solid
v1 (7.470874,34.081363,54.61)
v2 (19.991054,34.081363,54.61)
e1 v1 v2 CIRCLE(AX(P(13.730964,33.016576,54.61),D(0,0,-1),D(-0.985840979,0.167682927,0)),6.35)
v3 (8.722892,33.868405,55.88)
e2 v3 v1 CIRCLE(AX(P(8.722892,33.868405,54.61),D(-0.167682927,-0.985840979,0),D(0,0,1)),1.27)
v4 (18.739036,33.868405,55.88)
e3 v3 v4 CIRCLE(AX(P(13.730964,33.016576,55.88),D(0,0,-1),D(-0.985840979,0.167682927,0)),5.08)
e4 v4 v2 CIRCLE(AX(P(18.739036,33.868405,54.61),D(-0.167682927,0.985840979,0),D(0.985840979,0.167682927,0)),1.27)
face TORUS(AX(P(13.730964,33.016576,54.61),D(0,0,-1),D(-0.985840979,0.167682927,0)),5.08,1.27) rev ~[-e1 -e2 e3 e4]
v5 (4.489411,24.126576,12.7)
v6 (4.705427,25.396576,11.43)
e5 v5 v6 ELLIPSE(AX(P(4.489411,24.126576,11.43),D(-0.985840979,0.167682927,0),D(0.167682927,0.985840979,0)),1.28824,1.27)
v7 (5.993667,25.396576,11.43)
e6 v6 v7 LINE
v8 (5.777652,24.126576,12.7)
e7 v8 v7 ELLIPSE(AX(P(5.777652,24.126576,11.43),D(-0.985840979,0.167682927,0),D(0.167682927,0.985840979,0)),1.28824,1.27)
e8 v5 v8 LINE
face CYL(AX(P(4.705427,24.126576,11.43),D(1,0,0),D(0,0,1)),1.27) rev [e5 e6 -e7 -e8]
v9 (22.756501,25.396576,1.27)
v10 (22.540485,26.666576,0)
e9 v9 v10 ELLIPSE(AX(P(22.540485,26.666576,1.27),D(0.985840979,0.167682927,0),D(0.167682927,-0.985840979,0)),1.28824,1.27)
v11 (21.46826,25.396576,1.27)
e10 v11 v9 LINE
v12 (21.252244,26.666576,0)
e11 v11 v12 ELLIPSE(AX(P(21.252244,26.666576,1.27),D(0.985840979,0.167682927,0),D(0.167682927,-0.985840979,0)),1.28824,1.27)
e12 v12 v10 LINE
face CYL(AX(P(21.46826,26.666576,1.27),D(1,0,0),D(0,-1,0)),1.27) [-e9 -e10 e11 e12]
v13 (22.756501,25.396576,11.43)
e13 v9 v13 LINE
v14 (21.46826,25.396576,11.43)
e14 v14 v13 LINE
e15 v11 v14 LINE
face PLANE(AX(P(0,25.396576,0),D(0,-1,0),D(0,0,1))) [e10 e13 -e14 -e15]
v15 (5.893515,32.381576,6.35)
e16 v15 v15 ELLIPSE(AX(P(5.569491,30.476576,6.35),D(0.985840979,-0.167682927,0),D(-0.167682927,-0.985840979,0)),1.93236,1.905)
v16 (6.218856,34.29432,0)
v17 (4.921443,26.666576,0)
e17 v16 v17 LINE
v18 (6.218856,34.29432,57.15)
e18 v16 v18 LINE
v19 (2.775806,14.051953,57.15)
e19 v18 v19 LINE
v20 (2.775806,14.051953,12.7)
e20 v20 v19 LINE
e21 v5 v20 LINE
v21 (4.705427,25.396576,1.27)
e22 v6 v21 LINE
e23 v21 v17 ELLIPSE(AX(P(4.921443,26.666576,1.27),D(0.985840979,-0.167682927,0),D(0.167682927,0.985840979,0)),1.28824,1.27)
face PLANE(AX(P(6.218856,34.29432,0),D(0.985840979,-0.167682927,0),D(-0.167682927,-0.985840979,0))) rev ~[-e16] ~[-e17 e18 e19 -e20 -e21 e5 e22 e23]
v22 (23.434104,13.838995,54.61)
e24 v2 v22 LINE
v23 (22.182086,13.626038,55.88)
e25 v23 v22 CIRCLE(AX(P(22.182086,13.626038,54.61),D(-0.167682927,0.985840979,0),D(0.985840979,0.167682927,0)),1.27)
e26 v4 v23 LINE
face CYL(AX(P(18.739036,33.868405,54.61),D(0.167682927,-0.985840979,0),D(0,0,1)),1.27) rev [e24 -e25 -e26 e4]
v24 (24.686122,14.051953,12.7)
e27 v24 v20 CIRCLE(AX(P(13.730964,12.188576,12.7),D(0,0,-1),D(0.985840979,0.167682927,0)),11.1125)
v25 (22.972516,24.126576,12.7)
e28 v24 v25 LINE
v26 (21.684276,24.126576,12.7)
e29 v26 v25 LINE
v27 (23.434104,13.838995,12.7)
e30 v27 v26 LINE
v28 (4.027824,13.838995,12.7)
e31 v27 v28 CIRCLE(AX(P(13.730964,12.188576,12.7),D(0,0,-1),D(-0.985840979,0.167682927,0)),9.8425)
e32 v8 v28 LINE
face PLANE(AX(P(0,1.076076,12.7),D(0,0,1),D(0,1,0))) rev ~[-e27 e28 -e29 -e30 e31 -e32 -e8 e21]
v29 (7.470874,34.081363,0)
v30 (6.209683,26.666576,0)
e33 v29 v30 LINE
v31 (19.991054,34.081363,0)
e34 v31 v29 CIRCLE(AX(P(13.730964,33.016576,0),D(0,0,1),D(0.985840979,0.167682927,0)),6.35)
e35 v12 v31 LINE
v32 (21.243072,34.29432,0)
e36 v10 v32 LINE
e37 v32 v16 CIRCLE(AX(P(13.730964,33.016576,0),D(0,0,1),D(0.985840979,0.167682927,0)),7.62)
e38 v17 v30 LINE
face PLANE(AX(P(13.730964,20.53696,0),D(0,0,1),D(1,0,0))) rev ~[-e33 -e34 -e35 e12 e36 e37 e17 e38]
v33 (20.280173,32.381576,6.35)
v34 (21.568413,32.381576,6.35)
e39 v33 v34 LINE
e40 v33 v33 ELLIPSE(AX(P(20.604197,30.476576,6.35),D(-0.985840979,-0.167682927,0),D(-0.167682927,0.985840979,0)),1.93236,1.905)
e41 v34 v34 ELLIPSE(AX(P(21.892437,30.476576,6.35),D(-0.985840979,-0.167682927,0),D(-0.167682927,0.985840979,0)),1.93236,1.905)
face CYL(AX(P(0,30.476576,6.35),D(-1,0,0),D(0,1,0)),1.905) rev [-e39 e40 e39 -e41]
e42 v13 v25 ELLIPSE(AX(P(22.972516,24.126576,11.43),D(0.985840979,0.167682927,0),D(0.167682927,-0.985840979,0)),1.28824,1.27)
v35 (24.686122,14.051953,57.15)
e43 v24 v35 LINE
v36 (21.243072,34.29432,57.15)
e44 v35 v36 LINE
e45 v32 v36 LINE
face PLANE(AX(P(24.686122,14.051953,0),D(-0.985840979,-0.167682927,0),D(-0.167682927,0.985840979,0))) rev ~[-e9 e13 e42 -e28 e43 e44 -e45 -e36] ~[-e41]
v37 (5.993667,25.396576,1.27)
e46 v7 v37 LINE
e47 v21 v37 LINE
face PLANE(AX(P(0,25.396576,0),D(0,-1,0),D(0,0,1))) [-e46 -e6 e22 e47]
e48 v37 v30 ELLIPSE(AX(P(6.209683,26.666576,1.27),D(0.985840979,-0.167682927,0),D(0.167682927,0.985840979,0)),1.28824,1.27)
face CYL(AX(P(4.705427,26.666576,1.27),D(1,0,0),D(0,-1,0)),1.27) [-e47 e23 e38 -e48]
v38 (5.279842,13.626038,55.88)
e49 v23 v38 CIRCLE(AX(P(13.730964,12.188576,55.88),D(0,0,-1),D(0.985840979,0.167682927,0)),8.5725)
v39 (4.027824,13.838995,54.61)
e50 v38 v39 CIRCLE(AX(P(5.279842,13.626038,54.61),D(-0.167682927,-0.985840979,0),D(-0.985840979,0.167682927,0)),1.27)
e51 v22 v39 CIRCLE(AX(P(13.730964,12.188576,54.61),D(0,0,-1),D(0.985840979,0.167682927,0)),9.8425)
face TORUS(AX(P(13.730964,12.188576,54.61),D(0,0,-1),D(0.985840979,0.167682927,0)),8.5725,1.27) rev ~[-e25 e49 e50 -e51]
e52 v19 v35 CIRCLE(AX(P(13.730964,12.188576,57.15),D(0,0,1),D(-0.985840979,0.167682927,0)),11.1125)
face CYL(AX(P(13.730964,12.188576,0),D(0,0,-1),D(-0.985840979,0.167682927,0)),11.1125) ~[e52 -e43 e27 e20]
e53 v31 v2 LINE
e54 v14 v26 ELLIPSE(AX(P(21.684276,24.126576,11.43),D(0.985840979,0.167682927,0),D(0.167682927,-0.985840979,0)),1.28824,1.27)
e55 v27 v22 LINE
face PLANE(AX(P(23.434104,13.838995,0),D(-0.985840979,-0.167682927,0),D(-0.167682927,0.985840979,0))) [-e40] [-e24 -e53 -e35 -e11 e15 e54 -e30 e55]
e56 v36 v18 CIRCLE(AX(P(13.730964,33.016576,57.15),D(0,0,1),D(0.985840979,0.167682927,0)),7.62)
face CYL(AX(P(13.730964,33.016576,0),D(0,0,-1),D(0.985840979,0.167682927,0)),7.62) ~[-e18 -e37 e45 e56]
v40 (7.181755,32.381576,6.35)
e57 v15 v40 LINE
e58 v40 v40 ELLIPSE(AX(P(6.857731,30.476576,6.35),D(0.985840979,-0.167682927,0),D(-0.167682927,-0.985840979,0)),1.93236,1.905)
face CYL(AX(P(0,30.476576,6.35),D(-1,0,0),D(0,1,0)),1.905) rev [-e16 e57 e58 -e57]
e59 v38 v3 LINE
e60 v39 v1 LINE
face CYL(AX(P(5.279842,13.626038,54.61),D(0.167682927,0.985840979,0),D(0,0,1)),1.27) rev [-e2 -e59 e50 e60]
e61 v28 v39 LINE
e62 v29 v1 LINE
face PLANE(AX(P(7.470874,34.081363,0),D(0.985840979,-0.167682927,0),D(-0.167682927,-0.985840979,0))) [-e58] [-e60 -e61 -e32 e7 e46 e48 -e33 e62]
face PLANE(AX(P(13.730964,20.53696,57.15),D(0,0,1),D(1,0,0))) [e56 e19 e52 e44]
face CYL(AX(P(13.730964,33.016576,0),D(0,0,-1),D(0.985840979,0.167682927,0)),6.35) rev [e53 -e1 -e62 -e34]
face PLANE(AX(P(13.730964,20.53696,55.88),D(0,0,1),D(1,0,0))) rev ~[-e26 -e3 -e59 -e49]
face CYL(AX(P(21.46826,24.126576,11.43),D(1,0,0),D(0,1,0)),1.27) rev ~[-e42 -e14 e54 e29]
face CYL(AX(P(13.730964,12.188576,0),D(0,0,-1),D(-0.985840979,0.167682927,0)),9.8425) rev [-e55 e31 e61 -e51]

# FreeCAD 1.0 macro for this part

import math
import FreeCAD as App
import Part
import Sketcher

V = App.Vector
Q = App.Units.Quantity


def edges_at(feature, points):
    """Names of the edges that pass closest to the given points."""
    edges = feature.Shape.Edges
    near = lambda p: min(range(len(edges)), key=lambda i: edges[i].distToShape(Part.Vertex(*p))[0])
    return sorted({f"Edge{near(p) + 1}" for p in points})


def faces_at(feature, points):
    """Names of the faces that lie closest to the given points."""
    faces = feature.Shape.Faces
    near = lambda p: min(range(len(faces)), key=lambda i: faces[i].distToShape(Part.Vertex(*p))[0])
    return sorted({f"Face{near(p) + 1}" for p in points})


def add_polygon(sketch, points):
    """Adds a closed chain of lines whose ends are joined by coincident constraints."""
    first, n = sketch.GeometryCount, len(points)
    for a, b in zip(points, points[1:] + points[:1]):
        sketch.addGeometry(Part.LineSegment(App.Vector(*a, 0), App.Vector(*b, 0)), False)
    for i in range(n):
        sketch.addConstraint(Sketcher.Constraint("Coincident", first + i, 2, first + (i + 1) % n, 1))

doc = App.newDocument("Part")
body = doc.addObject("PartDesign::Body", "Body")

# Sketch on XY plane
sketch1 = doc.addObject("Sketcher::SketchObject", "Sketch")
body.addObject(sketch1)
sketch1.AttachmentSupport = (doc.XY_Plane, [""])
sketch1.MapMode = "FlatFace"
sketch1.addGeometry([
    Part.LineSegment(V(6, 34, 0), V(3, 14, 0)),
    Part.ArcOfCircle(Part.Circle(V(14, 12, 0), V(0, 0, 1), 11), math.radians(170), math.radians(370)),
    Part.LineSegment(V(25, 14, 0), V(21, 34, 0)),
    Part.ArcOfCircle(Part.Circle(V(14, 33, 0), V(0, 0, 1), 8), math.radians(10), math.radians(170)),
], False)
sketch1.addConstraint([
    Sketcher.Constraint("Tangent", 0, 2, 1, 1),
    Sketcher.Constraint("Tangent", 1, 2, 2, 1),
    Sketcher.Constraint("Tangent", 2, 2, 3, 1),
    Sketcher.Constraint("Tangent", 3, 2, 0, 1),
    Sketcher.Constraint("Horizontal", 0, 2, 1, 2),
    Sketcher.Constraint("Radius", 3, Q("0.3 in")),
    Sketcher.Constraint("Radius", 1, Q("0.4375 in")),
    Sketcher.Constraint("DistanceY", 1, 3, 3, 3, Q("0.82 in")),
    Sketcher.Constraint("DistanceX", -1, 1, 1, 2, 24.686122),
    Sketcher.Constraint("DistanceY", -1, 1, 2, 2, 34.29432),
])
pad1 = doc.addObject("PartDesign::Pad", "Pad")
body.addObject(pad1)
pad1.Profile = sketch1
pad1.Length = Q("2.25 in")
doc.recompute()

thickness = doc.addObject("PartDesign::Thickness", "Thickness")
body.addObject(thickness)
thickness.Base = (pad1, faces_at(pad1, [(13.731, 20.856, 0)]))
thickness.Value = Q("0.05 in")
thickness.Reversed = True
thickness.Join = "Arc"

# Sketch on YZ plane
sketch2 = doc.addObject("Sketcher::SketchObject", "Sketch001")
body.addObject(sketch2)
sketch2.AttachmentSupport = (doc.YZ_Plane, [""])
sketch2.MapMode = "FlatFace"
add_polygon(sketch2, [(1.1, 12.7), (1.1, 0), (25.4, 0), (25.4, 12.7)])  # lines 0-3
sketch2.addGeometry(Part.Circle(V(30.5, 6.3, 0), V(0, 0, 1), 1.9), False)  # 4
sketch2.addConstraint([
    Sketcher.Constraint("Vertical", 0),
    Sketcher.Constraint("Horizontal", 1),
    Sketcher.Constraint("Vertical", 2),
    Sketcher.Constraint("Horizontal", 3),
    Sketcher.Constraint("PointOnObject", 0, 2, -1),
    Sketcher.Constraint("Diameter", 4, Q("0.15 in")),
    Sketcher.Constraint("DistanceY", 0, 2, 0, 1, Q("0.5 in")),
    Sketcher.Constraint("DistanceX", 1, 2, 4, 3, Q("0.2 in")),
    Sketcher.Constraint("DistanceY", -1, 1, 4, 3, Q("0.25 in")),
    Sketcher.Constraint("DistanceX", 1, 1, 1, 2, Q("0.9575 in")),
    Sketcher.Constraint("DistanceX", -1, 1, 4, 3, 30.476576),
])
pocket1 = doc.addObject("PartDesign::Pocket", "Pocket")
body.addObject(pocket1)
pocket1.Profile = sketch2
pocket1.Type = "ThroughAll"
pocket1.Reversed = True
doc.recompute()

fillet = doc.addObject("PartDesign::Fillet", "Fillet")
body.addObject(fillet)
fillet.Base = (pocket1, edges_at(pocket1, [
    (5.35, 25.397, 12.7),
    (22.112, 25.397, 12.7),
    (5.35, 25.397, 0),
    (22.112, 25.397, 0),
    (13.731, 2.346, 55.88),
    (21.713, 23.96, 55.88),
    (13.731, 39.367, 55.88),
    (5.749, 23.96, 55.88),
]))
fillet.Radius = Q("0.05 in")

doc.recompute()
